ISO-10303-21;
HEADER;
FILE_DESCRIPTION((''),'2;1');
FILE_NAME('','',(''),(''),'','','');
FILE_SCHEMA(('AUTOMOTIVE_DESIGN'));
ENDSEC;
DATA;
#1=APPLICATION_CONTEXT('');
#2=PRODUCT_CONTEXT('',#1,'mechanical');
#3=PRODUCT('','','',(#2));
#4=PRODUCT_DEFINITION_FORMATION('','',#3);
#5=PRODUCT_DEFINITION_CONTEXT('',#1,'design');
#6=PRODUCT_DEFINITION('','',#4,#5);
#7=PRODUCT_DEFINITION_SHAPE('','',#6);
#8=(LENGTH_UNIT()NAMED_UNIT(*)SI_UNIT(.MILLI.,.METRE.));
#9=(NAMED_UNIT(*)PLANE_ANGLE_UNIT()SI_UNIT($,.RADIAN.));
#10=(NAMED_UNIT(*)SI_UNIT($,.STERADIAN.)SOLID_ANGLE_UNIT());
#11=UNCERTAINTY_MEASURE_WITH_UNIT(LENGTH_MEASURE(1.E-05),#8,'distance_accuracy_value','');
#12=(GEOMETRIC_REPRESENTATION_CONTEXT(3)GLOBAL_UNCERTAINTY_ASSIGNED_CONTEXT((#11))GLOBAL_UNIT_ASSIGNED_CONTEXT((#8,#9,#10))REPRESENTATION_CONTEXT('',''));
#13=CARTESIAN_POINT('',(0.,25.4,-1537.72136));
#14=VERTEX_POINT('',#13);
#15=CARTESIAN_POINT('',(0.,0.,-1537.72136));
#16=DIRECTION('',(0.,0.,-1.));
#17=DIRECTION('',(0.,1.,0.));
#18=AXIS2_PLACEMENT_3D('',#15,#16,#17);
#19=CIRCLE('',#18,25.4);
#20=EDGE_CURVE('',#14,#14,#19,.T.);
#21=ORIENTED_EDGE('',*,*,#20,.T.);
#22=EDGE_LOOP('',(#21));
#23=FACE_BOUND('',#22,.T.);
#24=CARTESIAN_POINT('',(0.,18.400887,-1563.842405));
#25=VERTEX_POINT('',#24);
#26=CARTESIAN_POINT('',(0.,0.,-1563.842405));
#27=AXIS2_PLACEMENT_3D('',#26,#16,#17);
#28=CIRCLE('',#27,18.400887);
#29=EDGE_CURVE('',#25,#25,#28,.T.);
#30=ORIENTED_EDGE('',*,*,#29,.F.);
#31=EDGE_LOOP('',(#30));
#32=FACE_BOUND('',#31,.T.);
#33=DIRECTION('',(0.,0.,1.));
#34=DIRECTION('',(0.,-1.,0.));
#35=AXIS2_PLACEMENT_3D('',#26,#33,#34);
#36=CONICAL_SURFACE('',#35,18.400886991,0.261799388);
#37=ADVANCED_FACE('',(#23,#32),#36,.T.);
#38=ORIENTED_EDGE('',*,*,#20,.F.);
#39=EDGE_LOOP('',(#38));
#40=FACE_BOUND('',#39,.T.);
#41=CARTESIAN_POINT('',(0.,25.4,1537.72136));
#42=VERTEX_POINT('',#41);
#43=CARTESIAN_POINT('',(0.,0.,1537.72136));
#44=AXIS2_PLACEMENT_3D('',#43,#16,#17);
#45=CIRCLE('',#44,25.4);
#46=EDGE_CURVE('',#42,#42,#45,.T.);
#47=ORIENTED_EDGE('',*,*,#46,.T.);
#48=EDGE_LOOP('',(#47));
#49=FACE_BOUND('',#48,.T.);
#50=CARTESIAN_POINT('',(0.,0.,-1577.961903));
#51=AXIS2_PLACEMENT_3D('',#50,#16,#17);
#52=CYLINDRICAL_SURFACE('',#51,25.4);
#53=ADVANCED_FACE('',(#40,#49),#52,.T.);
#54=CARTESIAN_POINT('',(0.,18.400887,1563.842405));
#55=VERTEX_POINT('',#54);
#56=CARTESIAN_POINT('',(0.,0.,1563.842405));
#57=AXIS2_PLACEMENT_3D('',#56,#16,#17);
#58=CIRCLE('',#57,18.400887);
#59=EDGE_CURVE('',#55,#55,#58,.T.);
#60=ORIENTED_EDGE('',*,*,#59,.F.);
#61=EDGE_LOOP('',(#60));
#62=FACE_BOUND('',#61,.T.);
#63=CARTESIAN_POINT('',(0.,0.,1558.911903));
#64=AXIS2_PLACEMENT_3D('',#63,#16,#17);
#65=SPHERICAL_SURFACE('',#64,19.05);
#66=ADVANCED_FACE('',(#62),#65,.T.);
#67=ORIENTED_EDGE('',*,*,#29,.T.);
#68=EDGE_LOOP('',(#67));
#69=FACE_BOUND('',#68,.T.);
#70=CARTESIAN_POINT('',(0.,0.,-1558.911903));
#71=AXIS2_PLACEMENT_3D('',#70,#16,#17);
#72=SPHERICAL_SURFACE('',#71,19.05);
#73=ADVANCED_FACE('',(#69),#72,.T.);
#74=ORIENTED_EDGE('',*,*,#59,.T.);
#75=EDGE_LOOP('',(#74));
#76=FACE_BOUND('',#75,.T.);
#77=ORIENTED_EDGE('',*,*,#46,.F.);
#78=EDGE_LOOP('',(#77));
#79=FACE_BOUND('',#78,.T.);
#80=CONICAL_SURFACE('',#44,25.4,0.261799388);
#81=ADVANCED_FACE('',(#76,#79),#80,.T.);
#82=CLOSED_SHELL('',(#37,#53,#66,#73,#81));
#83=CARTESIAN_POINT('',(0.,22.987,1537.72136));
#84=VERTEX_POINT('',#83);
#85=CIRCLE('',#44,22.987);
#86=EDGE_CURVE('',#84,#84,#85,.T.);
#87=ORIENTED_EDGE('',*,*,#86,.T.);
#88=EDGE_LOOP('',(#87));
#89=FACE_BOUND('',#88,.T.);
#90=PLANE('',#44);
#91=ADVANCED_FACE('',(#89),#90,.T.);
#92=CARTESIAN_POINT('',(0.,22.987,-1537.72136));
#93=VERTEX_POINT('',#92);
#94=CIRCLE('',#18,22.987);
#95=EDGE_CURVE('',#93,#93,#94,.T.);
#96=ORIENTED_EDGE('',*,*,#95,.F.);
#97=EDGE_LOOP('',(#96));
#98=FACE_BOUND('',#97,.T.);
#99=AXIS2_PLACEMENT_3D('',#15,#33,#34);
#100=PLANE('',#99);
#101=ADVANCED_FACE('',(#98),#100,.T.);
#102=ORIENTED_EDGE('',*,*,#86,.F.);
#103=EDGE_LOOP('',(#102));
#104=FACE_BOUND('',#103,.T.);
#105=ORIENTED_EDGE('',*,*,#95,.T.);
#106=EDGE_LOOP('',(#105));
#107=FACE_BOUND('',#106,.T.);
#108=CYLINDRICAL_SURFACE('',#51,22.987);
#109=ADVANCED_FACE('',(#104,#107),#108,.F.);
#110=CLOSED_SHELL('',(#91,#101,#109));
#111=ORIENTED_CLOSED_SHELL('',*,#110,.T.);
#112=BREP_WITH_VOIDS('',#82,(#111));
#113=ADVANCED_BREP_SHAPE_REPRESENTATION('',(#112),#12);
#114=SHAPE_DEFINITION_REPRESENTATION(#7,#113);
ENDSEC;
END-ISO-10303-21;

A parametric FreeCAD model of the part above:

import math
import FreeCAD as App
import Part
import Sketcher
from FreeCAD import Vector
Q = App.Units.Quantity

doc = App.newDocument("Part")
body = doc.addObject("PartDesign::Body", "Body")

sketch1 = doc.addObject("Sketcher::SketchObject", "Sketch")
body.addObject(sketch1)
sketch1.AttachmentSupport = (doc.YZ_Plane, [""])
sketch1.MapMode = "FlatFace"
sketch1.addGeometry(Part.LineSegment(Vector(18, -1564, 0), Vector(25, -1538, 0)), False)
sketch1.addGeometry(Part.LineSegment(Vector(25, -1538, 0), Vector(25, 1538, 0)), False)
sketch1.addGeometry(Part.LineSegment(Vector(25, 1538, 0), Vector(18, 1564, 0)), False)
sketch1.addGeometry(Part.ArcOfCircle(Part.Circle(Vector(0, 1559, 0), Vector(0, 0, 1), 19), math.radians(15), math.radians(90)), False)
sketch1.addGeometry(Part.LineSegment(Vector(0, 1578, 0), Vector(0, 1538, 0)), False)
sketch1.addGeometry(Part.LineSegment(Vector(0, 1538, 0), Vector(23, 1538, 0)), False)
sketch1.addGeometry(Part.LineSegment(Vector(23, 1538, 0), Vector(23, -1538, 0)), False)
sketch1.addGeometry(Part.LineSegment(Vector(23, -1538, 0), Vector(0, -1538, 0)), False)
sketch1.addGeometry(Part.LineSegment(Vector(0, -1538, 0), Vector(0, -1578, 0)), False)
sketch1.addGeometry(Part.ArcOfCircle(Part.Circle(Vector(0, -1559, 0), Vector(0, 0, 1), 19), math.radians(-90), math.radians(-15)), False)
sketch1.addConstraint(Sketcher.Constraint("Coincident", 0, 2, 1, 1))
sketch1.addConstraint(Sketcher.Constraint("Coincident", 1, 2, 2, 1))
sketch1.addConstraint(Sketcher.Constraint("Tangent", 2, 2, 3, 1))
sketch1.addConstraint(Sketcher.Constraint("Coincident", 3, 2, 4, 1))
sketch1.addConstraint(Sketcher.Constraint("Coincident", 4, 2, 5, 1))
sketch1.addConstraint(Sketcher.Constraint("Coincident", 5, 2, 6, 1))
sketch1.addConstraint(Sketcher.Constraint("Coincident", 6, 2, 7, 1))
sketch1.addConstraint(Sketcher.Constraint("Coincident", 7, 2, 8, 1))
sketch1.addConstraint(Sketcher.Constraint("Coincident", 8, 2, 9, 1))
sketch1.addConstraint(Sketcher.Constraint("Tangent", 9, 2, 0, 1))
sketch1.addConstraint(Sketcher.Constraint("Vertical", 1))
sketch1.addConstraint(Sketcher.Constraint("Vertical", 4))
sketch1.addConstraint(Sketcher.Constraint("Horizontal", 5))
sketch1.addConstraint(Sketcher.Constraint("Vertical", 6))
sketch1.addConstraint(Sketcher.Constraint("Horizontal", 7))
sketch1.addConstraint(Sketcher.Constraint("Vertical", 8))
sketch1.addConstraint(Sketcher.Constraint("Equal", 3, 9))
sketch1.addConstraint(Sketcher.Constraint("Symmetric", 3, 3, 9, 3, -1, 1))
sketch1.addConstraint(Sketcher.Constraint("Symmetric", 4, 2, 7, 2, -1, 1))
sketch1.addConstraint(Sketcher.Constraint("Symmetric", 2, 2, 9, 2, -1))
sketch1.addConstraint(Sketcher.Constraint("PointOnObject", 3, 2, -2))
sketch1.addConstraint(Sketcher.Constraint("Horizontal", 1, 2, 4, 2))
sketch1.addConstraint(Sketcher.Constraint("Radius", 3, Q("0.75 in")))
sketch1.addConstraint(Sketcher.Constraint("DistanceX", -1, 1, 0, 2, Q("1 in")))
sketch1.addConstraint(Sketcher.Constraint("Angle", 0, Q("75 deg")))
sketch1.addConstraint(Sketcher.Constraint("DistanceX", 5, 1, 5, 2, Q("0.905 in")))
sketch1.addConstraint(Sketcher.Constraint("DistanceY", 1, 1, 1, 2, 3075.44272))
revolution = doc.addObject("PartDesign::Revolution", "Revolution")
body.addObject(revolution)
revolution.Profile = sketch1
revolution.ReferenceAxis = (sketch1, ["V_Axis"])
revolution.Angle = 360

doc.recompute()
